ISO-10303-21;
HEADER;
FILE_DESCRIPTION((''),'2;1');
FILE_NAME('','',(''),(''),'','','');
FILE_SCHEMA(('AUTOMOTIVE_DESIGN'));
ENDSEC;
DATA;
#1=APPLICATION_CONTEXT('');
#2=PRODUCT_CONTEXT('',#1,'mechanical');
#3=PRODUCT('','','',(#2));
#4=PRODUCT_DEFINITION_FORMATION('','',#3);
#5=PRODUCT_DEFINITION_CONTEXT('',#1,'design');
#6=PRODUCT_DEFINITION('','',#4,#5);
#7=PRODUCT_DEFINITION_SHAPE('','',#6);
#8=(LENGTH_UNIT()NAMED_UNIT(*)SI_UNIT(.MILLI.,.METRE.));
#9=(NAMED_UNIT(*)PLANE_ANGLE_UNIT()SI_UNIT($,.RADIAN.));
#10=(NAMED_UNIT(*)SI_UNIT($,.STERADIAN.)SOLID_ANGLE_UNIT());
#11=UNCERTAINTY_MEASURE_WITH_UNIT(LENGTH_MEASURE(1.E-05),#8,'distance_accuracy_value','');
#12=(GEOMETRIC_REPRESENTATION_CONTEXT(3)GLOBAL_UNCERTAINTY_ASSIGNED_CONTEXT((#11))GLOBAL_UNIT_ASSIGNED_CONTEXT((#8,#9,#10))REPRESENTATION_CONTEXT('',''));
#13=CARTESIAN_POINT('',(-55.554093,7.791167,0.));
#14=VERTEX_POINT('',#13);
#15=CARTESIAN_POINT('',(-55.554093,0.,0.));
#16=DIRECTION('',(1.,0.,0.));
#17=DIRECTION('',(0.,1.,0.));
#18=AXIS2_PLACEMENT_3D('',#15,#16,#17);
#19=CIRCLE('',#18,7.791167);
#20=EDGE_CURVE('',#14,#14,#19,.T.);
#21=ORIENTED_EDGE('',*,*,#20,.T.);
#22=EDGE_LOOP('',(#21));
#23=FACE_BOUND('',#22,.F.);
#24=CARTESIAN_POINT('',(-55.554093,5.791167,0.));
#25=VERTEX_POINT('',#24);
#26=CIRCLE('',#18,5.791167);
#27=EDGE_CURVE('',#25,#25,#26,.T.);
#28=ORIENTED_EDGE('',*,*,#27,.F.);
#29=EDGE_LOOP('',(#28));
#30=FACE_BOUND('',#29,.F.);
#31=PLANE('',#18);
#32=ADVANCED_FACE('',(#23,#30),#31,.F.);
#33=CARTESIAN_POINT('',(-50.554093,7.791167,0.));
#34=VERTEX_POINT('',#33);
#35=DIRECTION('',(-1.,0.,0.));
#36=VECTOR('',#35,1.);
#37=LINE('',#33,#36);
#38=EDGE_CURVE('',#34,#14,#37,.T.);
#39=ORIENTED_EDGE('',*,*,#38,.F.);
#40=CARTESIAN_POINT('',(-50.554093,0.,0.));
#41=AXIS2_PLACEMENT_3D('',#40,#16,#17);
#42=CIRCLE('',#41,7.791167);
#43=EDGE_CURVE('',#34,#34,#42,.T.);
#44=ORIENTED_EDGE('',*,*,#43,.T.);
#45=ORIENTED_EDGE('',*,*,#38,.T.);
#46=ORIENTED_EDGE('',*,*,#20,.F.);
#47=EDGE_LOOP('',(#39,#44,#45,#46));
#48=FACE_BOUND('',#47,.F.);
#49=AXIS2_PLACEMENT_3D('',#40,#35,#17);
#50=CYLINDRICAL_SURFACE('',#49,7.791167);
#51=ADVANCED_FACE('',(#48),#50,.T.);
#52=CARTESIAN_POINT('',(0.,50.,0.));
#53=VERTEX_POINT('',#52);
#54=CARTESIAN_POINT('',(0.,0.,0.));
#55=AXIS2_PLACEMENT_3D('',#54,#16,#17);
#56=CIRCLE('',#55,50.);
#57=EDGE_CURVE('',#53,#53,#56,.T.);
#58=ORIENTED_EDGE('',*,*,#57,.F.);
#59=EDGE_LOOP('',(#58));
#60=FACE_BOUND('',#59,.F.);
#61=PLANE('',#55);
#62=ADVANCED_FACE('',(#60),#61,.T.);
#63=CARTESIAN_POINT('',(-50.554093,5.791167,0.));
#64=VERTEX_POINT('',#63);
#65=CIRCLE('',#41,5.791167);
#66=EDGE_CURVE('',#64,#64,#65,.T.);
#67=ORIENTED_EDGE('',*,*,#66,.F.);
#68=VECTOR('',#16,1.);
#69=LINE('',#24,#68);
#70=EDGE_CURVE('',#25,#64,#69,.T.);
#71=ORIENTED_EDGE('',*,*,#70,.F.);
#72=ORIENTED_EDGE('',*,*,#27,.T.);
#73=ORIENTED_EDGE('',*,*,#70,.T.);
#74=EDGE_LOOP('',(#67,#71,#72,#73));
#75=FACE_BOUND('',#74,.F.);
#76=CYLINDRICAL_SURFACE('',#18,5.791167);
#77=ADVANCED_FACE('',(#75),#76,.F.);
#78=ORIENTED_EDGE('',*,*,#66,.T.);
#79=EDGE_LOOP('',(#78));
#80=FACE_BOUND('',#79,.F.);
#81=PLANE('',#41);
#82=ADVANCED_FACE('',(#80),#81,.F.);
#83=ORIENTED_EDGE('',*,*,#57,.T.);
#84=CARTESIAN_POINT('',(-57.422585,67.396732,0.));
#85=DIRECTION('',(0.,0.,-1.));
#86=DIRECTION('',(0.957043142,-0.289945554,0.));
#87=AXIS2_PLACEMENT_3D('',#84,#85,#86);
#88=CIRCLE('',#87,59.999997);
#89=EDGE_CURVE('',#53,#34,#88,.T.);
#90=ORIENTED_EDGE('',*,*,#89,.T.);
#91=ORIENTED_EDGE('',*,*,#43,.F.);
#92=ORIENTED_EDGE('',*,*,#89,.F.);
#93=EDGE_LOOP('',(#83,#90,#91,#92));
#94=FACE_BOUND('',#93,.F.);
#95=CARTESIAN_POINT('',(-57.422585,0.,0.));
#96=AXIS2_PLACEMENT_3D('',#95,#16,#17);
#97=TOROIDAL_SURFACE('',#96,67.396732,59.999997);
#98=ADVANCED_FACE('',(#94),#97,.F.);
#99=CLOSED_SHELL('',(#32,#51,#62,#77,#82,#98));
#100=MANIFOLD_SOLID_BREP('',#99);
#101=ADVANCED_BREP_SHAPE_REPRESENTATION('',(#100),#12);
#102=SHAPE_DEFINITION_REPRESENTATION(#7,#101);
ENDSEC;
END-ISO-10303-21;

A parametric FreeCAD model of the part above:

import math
import FreeCAD as App
import Part
import Sketcher

doc = App.newDocument("Part")
body = doc.addObject("PartDesign::Body", "Body")

sketch1 = doc.addObject("Sketcher::SketchObject", "Sketch")
body.addObject(sketch1)
sketch1.AttachmentSupport = (doc.XY_Plane, [""])
sketch1.MapMode = "FlatFace"
sketch1.addGeometry(Part.LineSegment(App.Vector(-50.554093, 0, 0), App.Vector(0, 0, 0)), False)
sketch1.addGeometry(Part.LineSegment(App.Vector(0, 0, 0), App.Vector(0, 50, 0)), False)
sketch1.addGeometry(Part.ArcOfCircle(Part.Circle(App.Vector(-57.422585, 67.396732, 0), App.Vector(0, 0, 1), 59.999997), math.radians(-83.426662), math.radians(-16.854696)), False)
sketch1.addGeometry(Part.LineSegment(App.Vector(-50.554093, 7.791167, 0), App.Vector(-55.554093, 7.791167, 0)), False)
sketch1.addGeometry(Part.LineSegment(App.Vector(-55.554093, 7.791167, 0), App.Vector(-55.554093, 5.791167, 0)), False)
sketch1.addGeometry(Part.LineSegment(App.Vector(-55.554093, 5.791167, 0), App.Vector(-50.554093, 5.791167, 0)), False)
sketch1.addGeometry(Part.LineSegment(App.Vector(-50.554093, 5.791167, 0), App.Vector(-50.554093, 0, 0)), False)
sketch1.addConstraint(Sketcher.Constraint("Coincident", 0, 2, 1, 1))
sketch1.addConstraint(Sketcher.Constraint("Coincident", 1, 2, 2, 2))
sketch1.addConstraint(Sketcher.Constraint("Coincident", 2, 1, 3, 1))
sketch1.addConstraint(Sketcher.Constraint("Coincident", 3, 2, 4, 1))
sketch1.addConstraint(Sketcher.Constraint("Coincident", 4, 2, 5, 1))
sketch1.addConstraint(Sketcher.Constraint("Coincident", 5, 2, 6, 1))
sketch1.addConstraint(Sketcher.Constraint("Coincident", 6, 2, 0, 1))
sketch1.addConstraint(Sketcher.Constraint("Horizontal", 0))
sketch1.addConstraint(Sketcher.Constraint("Vertical", 1))
sketch1.addConstraint(Sketcher.Constraint("Horizontal", 3))
sketch1.addConstraint(Sketcher.Constraint("Vertical", 4))
sketch1.addConstraint(Sketcher.Constraint("Horizontal", 5))
sketch1.addConstraint(Sketcher.Constraint("Vertical", 6))
sketch1.addConstraint(Sketcher.Constraint("Coincident", 0, 2, -1, 1))
sketch1.addConstraint(Sketcher.Constraint("Vertical", 2, 1, 5, 2))
sketch1.addConstraint(Sketcher.Constraint("DistanceX", 3, 2, 3, 1, 5.0))
sketch1.addConstraint(Sketcher.Constraint("DistanceY", 1, 1, 1, 2, 50.0))
sketch1.addConstraint(Sketcher.Constraint("DistanceY", 4, 2, 4, 1, 2.0))
sketch1.addConstraint(Sketcher.Constraint("Radius", 2, 59.999997))
sketch1.addConstraint(Sketcher.Constraint("DistanceX", 0, 1, 0, 2, 50.554093))
sketch1.addConstraint(Sketcher.Constraint("DistanceY", 6, 2, 6, 1, 5.791167))
revolution = doc.addObject("PartDesign::Revolution", "Revolution")
body.addObject(revolution)
revolution.Profile = sketch1
revolution.ReferenceAxis = (sketch1, ["H_Axis"])
revolution.Angle = 360

doc.recompute()
